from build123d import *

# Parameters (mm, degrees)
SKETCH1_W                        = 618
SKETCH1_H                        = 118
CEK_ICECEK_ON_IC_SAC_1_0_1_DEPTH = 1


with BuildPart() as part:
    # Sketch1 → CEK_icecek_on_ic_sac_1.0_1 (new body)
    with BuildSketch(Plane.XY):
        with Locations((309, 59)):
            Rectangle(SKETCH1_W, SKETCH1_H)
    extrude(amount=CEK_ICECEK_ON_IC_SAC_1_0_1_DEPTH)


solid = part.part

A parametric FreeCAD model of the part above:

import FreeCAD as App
import Part
import Sketcher
from FreeCAD import Vector
Q = App.Units.Quantity

doc = App.newDocument("Part")
body = doc.addObject("PartDesign::Body", "Body")

sketch1 = body.newObject("Sketcher::SketchObject", "Sketch")
sketch1.AttachmentSupport = (doc.getObject("XY_Plane"), [""])
sketch1.MapMode = "FlatFace"
sketch1.addGeometry([
    Part.LineSegment(Vector(0, 118, 0), Vector(0, 0, 0)),
    Part.LineSegment(Vector(0, 0, 0), Vector(618, 0, 0)),
    Part.LineSegment(Vector(618, 0, 0), Vector(618, 118, 0)),
    Part.LineSegment(Vector(618, 118, 0), Vector(0, 118, 0)),
], False)
sketch1.addConstraint([
    Sketcher.Constraint("Coincident", 0, 2, 1, 1),
    Sketcher.Constraint("Coincident", 1, 2, 2, 1),
    Sketcher.Constraint("Coincident", 2, 2, 3, 1),
    Sketcher.Constraint("Coincident", 3, 2, 0, 1),
    Sketcher.Constraint("Vertical", 0),
    Sketcher.Constraint("Horizontal", 1),
    Sketcher.Constraint("Vertical", 2),
    Sketcher.Constraint("Horizontal", 3),
    Sketcher.Constraint("Coincident", 0, 2, -1, 1),
    Sketcher.Constraint("DistanceX", 1, 1, 1, 2, Q("618 mm")),
    Sketcher.Constraint("DistanceY", 0, 2, 0, 1, Q("118 mm")),
])
pad1 = body.newObject("PartDesign::Pad", "Pad")
pad1.Profile = sketch1
pad1.Length = 1

doc.recompute()
